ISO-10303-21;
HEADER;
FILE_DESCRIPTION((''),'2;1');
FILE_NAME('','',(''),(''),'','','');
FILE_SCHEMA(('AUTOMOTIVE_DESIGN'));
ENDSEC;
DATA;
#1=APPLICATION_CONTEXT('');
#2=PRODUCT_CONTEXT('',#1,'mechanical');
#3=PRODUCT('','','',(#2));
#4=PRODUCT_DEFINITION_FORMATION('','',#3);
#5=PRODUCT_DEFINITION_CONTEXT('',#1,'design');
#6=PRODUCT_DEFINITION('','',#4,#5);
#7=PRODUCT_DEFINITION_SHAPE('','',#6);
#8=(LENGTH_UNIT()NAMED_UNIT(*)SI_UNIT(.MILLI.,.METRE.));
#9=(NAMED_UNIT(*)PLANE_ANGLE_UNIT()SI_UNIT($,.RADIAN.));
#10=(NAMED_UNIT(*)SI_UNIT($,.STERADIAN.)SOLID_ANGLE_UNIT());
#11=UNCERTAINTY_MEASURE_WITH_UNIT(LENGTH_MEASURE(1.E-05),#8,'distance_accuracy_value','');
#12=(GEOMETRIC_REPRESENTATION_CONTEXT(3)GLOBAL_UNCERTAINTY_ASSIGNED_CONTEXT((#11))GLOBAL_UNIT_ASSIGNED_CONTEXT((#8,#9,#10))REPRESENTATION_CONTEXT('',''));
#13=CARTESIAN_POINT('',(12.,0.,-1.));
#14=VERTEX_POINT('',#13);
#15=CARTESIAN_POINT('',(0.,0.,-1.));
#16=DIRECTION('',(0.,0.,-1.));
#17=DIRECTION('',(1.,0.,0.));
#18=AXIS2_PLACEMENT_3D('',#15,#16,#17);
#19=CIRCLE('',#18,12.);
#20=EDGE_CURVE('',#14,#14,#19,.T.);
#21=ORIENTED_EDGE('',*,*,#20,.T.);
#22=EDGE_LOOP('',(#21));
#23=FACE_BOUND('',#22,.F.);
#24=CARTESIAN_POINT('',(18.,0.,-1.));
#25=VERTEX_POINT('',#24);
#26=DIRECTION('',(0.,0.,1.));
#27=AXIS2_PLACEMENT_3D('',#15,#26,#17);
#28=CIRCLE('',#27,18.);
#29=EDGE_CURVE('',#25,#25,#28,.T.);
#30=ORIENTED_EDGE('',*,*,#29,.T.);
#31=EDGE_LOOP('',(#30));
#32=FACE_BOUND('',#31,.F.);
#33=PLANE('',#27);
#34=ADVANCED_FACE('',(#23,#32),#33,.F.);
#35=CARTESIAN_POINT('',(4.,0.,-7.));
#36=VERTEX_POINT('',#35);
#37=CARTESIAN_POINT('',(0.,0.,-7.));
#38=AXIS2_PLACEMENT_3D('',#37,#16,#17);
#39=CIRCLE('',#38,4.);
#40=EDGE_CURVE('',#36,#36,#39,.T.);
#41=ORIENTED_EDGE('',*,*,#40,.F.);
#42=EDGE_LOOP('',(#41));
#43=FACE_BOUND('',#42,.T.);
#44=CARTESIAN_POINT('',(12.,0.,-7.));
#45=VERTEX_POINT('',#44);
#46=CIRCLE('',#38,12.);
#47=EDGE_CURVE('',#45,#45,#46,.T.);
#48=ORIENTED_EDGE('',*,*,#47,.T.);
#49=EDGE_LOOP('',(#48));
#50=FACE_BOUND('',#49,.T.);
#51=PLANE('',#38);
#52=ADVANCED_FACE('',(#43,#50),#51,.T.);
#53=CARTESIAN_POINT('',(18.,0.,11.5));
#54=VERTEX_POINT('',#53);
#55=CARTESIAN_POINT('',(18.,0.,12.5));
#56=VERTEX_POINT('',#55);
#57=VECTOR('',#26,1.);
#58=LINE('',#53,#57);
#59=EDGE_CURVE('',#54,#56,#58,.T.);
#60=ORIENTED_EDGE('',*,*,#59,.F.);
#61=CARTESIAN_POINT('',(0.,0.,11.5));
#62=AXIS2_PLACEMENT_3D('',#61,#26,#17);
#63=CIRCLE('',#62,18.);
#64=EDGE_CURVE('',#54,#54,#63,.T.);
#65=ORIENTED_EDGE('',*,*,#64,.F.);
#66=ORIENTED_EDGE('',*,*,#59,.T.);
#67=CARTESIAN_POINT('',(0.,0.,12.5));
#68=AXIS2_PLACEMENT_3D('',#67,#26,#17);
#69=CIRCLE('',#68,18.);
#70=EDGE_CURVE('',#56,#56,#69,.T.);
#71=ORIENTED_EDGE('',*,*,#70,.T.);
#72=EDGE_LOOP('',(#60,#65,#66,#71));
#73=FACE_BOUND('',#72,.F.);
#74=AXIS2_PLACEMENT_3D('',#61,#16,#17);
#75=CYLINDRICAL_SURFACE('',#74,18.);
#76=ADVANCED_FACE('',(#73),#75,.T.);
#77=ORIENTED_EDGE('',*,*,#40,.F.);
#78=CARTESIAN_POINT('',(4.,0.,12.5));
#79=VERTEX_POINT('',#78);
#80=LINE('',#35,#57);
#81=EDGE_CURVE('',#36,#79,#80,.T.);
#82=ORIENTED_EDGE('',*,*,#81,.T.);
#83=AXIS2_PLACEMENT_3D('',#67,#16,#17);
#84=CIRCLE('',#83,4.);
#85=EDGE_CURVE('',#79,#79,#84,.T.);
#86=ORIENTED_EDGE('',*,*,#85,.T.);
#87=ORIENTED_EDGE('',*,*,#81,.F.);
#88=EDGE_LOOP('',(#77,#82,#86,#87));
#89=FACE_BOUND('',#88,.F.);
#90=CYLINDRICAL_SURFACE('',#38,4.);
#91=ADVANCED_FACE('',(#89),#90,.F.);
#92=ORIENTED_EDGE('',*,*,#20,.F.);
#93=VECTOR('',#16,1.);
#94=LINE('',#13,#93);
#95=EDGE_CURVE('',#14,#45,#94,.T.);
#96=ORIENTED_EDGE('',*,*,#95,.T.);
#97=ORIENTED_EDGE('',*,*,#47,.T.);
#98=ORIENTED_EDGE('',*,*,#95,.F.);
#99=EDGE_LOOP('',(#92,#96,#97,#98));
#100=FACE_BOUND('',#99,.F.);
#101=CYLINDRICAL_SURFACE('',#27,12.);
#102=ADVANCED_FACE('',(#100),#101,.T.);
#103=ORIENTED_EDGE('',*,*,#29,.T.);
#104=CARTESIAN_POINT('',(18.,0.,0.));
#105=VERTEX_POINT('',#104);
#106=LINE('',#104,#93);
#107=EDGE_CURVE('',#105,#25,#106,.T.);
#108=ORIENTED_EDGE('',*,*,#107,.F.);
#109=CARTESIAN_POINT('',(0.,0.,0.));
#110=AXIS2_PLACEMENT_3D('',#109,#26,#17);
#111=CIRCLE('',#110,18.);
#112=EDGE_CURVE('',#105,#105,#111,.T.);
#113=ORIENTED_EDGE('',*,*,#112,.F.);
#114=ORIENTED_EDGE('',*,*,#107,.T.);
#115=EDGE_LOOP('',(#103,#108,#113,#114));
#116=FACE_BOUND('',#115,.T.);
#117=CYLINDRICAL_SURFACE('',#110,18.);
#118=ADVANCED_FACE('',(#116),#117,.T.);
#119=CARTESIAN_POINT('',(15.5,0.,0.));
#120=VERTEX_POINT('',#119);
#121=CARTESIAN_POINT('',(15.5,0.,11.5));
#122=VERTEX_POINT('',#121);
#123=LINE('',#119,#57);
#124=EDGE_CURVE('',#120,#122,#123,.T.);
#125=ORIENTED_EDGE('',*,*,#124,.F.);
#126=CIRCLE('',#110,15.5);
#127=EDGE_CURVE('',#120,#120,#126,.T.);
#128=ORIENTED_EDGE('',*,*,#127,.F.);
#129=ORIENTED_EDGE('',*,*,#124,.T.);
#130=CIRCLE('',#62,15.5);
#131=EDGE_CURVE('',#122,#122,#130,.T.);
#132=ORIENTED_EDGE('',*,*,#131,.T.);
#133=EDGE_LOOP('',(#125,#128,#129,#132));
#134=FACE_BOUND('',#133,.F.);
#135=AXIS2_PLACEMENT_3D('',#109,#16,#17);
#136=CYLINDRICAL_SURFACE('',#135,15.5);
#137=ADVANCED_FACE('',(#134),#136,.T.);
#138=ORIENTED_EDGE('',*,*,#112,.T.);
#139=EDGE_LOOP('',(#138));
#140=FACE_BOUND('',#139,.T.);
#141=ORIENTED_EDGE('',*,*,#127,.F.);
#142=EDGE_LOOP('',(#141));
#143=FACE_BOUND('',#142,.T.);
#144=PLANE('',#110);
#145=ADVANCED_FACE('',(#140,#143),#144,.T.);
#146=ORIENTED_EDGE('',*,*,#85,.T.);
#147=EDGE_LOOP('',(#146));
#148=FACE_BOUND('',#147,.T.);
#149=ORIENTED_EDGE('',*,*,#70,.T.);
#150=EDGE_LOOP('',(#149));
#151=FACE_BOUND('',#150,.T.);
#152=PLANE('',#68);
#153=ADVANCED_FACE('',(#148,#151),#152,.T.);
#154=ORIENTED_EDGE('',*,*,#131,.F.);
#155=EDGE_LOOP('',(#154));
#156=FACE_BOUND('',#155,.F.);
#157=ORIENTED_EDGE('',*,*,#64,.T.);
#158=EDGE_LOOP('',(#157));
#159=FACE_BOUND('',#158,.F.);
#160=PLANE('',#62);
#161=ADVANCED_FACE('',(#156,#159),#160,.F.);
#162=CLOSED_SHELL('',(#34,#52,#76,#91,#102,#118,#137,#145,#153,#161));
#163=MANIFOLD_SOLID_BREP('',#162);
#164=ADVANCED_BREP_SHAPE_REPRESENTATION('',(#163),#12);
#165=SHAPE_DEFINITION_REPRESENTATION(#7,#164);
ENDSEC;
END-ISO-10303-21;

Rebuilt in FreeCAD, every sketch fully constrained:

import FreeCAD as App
import Part
import Sketcher
from FreeCAD import Vector

doc = App.newDocument("Part")
body = doc.addObject("PartDesign::Body", "Body")

sketch1 = doc.addObject("Sketcher::SketchObject", "Sketch")
body.addObject(sketch1)
sketch1.AttachmentSupport = (doc.XY_Plane, [""])
sketch1.MapMode = "FlatFace"
sketch1.addGeometry(Part.Circle(Vector(0, 0, 0), Vector(0, 0, 1), 16), False)
sketch1.addConstraint(Sketcher.Constraint("Coincident", 0, 3, -1, 1))
sketch1.addConstraint(Sketcher.Constraint("Diameter", 0, 31.0))
pad1 = doc.addObject("PartDesign::Pad", "Pad")
body.addObject(pad1)
pad1.Profile = sketch1
pad1.Length = 11.5

sketch2 = doc.addObject("Sketcher::SketchObject", "Sketch001")
body.addObject(sketch2)
sketch2.AttachmentSupport = (doc.XY_Plane, [""])
sketch2.MapMode = "FlatFace"
sketch2.AttachmentOffset = App.Placement(Vector(0, 0, 11.5), App.Rotation())
sketch2.addGeometry(Part.Circle(Vector(0, 0, 0), Vector(0, 0, 1), 18), False)
sketch2.addConstraint(Sketcher.Constraint("Coincident", 0, 3, -1, 1))
sketch2.addConstraint(Sketcher.Constraint("Diameter", 0, 36.0))
pad2 = doc.addObject("PartDesign::Pad", "Pad001")
body.addObject(pad2)
pad2.Profile = sketch2
pad2.Length = 1

sketch3 = doc.addObject("Sketcher::SketchObject", "Sketch002")
body.addObject(sketch3)
sketch3.AttachmentSupport = (doc.XY_Plane, [""])
sketch3.MapMode = "FlatFace"
sketch3.addGeometry(Part.Circle(Vector(0, 0, 0), Vector(0, 0, 1), 18), False)
sketch3.addConstraint(Sketcher.Constraint("Coincident", 0, 3, -1, 1))
sketch3.addConstraint(Sketcher.Constraint("Diameter", 0, 36.0))
pad3 = doc.addObject("PartDesign::Pad", "Pad002")
body.addObject(pad3)
pad3.Profile = sketch3
pad3.Length = 1
pad3.Reversed = True

sketch4 = doc.addObject("Sketcher::SketchObject", "Sketch003")
body.addObject(sketch4)
sketch4.AttachmentSupport = (doc.XY_Plane, [""])
sketch4.MapMode = "FlatFace"
sketch4.AttachmentOffset = App.Placement(Vector(0, 0, -1), App.Rotation())
sketch4.addGeometry(Part.Circle(Vector(0, 0, 0), Vector(0, 0, 1), 12), False)
sketch4.addConstraint(Sketcher.Constraint("Coincident", 0, 3, -1, 1))
sketch4.addConstraint(Sketcher.Constraint("Diameter", 0, 24.0))
pad4 = doc.addObject("PartDesign::Pad", "Pad003")
body.addObject(pad4)
pad4.Profile = sketch4
pad4.Length = 6
pad4.Reversed = True

sketch5 = doc.addObject("Sketcher::SketchObject", "Sketch004")
body.addObject(sketch5)
sketch5.AttachmentSupport = (doc.XY_Plane, [""])
sketch5.MapMode = "FlatFace"
sketch5.AttachmentOffset = App.Placement(Vector(0, 0, -7), App.Rotation())
sketch5.addGeometry(Part.Circle(Vector(0, 0, 0), Vector(0, 0, 1), 4), False)
sketch5.addConstraint(Sketcher.Constraint("Coincident", 0, 3, -1, 1))
sketch5.addConstraint(Sketcher.Constraint("Diameter", 0, 8.0))
pocket1 = doc.addObject("PartDesign::Pocket", "Pocket")
body.addObject(pocket1)
pocket1.Profile = sketch5
pocket1.Type = "ThroughAll"
pocket1.Reversed = True

doc.recompute()
